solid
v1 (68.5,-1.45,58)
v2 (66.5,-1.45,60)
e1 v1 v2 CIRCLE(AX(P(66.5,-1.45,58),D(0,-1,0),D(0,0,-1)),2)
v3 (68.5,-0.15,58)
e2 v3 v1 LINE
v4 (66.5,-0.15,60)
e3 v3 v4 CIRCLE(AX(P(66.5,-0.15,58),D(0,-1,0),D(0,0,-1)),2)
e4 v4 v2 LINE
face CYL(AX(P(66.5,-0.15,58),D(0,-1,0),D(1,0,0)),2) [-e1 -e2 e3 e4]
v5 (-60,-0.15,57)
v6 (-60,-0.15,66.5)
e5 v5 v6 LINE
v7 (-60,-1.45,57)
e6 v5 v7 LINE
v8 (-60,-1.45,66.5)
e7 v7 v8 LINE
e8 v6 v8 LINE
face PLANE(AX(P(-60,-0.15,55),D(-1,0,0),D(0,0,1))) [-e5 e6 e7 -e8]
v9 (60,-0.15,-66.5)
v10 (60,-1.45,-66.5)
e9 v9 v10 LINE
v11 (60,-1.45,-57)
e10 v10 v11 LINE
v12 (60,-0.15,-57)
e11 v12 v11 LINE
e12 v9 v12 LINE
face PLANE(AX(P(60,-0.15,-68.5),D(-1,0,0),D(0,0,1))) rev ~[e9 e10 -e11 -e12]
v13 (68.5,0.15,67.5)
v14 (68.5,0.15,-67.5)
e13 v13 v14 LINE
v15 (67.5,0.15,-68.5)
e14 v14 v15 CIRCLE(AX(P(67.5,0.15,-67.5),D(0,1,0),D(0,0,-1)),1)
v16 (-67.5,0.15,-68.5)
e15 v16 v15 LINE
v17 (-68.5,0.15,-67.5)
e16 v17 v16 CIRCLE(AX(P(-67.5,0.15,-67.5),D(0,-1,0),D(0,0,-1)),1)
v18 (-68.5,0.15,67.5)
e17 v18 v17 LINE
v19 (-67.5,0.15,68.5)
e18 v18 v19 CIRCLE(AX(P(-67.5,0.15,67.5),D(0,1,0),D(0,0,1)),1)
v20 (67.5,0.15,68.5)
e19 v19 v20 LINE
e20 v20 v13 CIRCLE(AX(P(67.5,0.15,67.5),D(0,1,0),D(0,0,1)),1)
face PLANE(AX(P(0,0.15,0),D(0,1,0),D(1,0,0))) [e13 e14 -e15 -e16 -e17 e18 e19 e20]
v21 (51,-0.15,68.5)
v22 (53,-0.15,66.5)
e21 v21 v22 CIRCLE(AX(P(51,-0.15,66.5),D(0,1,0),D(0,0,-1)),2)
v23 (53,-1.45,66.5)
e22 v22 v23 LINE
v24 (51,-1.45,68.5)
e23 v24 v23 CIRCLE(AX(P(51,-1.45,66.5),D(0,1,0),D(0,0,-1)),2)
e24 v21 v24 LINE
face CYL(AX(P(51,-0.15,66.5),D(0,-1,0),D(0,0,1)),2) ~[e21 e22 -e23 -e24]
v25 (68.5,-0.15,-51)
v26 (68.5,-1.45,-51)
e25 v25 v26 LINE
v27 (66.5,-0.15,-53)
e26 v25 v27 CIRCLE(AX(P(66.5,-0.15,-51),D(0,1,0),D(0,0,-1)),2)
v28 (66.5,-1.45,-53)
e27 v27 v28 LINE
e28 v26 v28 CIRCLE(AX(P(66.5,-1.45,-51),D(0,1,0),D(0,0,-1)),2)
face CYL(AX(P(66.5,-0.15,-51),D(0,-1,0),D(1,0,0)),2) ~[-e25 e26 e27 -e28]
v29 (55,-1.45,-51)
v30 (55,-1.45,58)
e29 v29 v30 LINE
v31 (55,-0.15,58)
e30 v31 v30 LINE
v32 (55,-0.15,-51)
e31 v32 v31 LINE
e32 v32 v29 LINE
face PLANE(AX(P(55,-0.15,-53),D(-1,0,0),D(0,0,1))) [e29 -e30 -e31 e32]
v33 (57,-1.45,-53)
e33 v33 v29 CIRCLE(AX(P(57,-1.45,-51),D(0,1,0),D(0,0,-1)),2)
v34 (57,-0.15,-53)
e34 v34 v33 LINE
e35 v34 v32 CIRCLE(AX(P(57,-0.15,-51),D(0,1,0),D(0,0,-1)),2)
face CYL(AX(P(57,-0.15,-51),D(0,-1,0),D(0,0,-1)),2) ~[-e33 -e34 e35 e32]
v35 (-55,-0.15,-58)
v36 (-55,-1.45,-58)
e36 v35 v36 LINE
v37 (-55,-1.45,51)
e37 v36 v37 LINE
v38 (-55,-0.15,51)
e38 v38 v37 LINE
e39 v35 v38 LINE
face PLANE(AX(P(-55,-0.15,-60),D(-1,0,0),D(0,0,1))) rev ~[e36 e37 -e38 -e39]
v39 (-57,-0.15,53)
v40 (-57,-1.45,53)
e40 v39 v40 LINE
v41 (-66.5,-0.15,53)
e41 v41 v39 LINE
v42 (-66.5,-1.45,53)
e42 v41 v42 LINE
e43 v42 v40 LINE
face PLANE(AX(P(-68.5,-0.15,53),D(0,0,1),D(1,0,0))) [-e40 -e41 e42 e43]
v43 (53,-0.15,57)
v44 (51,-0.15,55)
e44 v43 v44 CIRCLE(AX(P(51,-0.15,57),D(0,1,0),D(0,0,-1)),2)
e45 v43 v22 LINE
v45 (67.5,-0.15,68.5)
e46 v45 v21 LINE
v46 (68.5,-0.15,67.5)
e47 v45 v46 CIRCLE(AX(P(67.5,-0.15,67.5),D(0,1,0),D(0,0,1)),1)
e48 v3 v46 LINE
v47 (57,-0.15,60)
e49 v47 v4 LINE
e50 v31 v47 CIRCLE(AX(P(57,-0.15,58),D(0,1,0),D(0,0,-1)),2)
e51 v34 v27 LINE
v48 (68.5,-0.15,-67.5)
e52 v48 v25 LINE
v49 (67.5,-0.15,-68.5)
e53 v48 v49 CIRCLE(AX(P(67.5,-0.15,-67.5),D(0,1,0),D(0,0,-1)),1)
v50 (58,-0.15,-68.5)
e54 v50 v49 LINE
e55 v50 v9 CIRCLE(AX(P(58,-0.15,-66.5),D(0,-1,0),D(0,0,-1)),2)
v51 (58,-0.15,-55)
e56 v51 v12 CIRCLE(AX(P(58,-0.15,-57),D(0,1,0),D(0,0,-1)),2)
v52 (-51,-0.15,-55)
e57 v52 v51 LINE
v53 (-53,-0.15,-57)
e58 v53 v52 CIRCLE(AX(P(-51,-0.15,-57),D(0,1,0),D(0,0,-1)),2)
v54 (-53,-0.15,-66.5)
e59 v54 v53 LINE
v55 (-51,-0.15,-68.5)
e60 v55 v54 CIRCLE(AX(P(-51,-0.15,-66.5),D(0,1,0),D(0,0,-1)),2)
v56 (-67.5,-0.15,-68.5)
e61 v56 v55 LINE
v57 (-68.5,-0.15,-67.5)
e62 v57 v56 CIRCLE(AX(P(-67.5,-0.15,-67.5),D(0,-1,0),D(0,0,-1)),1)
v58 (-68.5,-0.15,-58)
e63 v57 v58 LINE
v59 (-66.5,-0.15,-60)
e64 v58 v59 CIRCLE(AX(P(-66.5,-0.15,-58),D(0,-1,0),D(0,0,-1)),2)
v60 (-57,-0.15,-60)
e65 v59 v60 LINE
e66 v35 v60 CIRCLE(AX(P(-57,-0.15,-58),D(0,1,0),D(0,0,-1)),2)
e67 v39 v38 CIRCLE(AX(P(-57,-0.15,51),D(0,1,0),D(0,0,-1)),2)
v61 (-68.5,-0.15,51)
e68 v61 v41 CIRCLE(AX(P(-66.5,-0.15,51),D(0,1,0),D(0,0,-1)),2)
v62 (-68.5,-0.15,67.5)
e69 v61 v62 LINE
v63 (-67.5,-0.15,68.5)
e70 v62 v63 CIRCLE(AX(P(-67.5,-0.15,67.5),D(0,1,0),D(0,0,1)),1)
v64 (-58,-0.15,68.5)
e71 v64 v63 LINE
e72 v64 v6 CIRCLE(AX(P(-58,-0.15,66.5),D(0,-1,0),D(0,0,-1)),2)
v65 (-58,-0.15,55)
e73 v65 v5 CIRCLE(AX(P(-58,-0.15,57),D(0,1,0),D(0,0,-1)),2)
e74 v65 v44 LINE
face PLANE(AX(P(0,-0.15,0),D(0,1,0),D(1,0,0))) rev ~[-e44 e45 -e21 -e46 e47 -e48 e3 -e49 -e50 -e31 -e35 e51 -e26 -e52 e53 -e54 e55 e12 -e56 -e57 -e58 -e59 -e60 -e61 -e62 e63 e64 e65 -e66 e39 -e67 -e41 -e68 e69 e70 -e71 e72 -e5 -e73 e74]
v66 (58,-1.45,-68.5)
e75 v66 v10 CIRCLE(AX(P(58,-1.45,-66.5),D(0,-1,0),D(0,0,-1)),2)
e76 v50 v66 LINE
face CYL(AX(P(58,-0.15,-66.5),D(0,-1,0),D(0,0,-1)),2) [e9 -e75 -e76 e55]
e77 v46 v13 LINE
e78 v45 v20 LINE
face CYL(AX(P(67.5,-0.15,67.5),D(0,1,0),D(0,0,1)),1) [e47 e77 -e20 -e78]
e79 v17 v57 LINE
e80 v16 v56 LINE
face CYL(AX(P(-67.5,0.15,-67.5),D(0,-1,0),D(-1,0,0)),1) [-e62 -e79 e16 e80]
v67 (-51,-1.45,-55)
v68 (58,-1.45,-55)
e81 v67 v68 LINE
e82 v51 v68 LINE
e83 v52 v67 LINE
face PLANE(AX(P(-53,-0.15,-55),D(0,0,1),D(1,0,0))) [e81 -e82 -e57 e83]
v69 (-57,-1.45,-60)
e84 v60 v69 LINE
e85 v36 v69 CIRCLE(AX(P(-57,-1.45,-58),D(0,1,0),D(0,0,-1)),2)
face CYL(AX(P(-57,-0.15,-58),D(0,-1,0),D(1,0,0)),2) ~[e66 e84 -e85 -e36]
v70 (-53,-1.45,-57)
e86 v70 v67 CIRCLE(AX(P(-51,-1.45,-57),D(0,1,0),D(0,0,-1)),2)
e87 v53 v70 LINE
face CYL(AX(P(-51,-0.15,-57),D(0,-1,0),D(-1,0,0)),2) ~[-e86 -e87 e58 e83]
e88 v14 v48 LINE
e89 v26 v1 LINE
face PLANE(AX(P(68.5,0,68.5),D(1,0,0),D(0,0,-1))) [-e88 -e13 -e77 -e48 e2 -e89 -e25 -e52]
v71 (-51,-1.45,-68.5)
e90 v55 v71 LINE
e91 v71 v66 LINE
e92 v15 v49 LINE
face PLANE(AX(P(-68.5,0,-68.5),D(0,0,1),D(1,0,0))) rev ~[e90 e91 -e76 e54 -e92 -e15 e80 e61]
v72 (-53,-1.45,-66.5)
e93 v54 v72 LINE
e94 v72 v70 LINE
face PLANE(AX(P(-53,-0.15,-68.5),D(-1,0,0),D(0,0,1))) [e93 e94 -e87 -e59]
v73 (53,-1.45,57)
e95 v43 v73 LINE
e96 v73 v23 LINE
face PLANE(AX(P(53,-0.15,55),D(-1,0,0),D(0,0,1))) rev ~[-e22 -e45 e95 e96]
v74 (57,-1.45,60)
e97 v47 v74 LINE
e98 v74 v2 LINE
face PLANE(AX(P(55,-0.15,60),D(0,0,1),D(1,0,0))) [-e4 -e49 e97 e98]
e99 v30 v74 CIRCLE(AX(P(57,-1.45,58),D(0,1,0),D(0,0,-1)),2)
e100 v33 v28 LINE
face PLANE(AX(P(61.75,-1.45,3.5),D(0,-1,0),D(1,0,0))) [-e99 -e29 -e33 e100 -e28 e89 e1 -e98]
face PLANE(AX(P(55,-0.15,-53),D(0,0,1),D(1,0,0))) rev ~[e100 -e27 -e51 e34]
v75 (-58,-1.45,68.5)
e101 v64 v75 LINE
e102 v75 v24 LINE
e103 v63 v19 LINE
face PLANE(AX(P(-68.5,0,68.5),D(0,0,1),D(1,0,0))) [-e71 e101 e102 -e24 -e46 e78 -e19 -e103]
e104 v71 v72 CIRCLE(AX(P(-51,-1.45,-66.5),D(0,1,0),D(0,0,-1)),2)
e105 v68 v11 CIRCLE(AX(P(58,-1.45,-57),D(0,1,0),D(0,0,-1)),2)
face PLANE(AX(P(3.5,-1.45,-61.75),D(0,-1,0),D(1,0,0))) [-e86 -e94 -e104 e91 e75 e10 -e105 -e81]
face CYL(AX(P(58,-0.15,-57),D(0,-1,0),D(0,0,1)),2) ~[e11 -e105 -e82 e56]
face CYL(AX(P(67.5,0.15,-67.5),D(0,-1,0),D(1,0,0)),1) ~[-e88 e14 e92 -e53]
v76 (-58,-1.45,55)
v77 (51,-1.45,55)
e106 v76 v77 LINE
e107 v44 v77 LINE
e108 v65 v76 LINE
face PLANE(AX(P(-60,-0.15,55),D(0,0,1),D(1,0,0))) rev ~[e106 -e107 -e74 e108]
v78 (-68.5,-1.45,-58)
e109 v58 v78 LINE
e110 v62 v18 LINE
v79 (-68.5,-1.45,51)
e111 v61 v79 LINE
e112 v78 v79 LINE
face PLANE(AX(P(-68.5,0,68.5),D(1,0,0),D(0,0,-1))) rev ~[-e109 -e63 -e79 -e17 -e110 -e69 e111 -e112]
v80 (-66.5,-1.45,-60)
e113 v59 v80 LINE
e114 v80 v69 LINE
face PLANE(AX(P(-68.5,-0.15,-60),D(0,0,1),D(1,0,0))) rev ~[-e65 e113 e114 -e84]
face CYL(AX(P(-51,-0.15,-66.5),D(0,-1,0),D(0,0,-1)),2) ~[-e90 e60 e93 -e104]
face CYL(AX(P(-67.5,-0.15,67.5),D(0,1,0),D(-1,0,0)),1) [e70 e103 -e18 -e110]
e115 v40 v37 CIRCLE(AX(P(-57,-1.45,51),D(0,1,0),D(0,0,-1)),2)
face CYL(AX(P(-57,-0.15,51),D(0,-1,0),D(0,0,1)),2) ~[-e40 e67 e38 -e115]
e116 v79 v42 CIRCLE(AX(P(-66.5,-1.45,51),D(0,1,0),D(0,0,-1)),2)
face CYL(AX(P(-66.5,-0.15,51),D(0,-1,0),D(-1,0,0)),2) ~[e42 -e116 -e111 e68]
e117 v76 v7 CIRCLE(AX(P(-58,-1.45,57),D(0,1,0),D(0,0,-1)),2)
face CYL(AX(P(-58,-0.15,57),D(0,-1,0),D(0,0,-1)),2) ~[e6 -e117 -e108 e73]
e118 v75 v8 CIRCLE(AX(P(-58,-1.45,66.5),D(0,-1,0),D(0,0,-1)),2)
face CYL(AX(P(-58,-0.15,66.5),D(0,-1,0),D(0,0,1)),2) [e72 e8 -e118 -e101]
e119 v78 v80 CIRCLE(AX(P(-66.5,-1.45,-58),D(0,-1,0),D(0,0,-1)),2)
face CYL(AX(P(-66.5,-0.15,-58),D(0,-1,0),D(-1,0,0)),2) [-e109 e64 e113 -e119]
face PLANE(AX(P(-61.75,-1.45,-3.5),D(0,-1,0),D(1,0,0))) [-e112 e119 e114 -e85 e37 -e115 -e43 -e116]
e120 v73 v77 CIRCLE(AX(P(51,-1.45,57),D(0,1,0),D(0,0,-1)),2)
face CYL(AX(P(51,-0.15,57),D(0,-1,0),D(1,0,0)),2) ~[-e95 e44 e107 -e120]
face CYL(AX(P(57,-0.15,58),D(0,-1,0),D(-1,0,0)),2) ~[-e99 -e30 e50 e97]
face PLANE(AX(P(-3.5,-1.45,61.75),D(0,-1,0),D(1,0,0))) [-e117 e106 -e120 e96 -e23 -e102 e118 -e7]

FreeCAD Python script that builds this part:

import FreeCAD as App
import Part
import Sketcher
from FreeCAD import Vector
Q = App.Units.Quantity


def edges_at(feature, points):
    """Names of the edges that pass closest to the given points."""
    edges = feature.Shape.Edges
    near = lambda p: min(range(len(edges)), key=lambda i: edges[i].distToShape(Part.Vertex(*p))[0])
    return sorted({f"Edge{near(p) + 1}" for p in points})


def add_polygon(sketch, points):
    """Adds a closed chain of lines whose ends are joined by coincident constraints."""
    first, n = sketch.GeometryCount, len(points)
    for a, b in zip(points, points[1:] + points[:1]):
        sketch.addGeometry(Part.LineSegment(App.Vector(*a, 0), App.Vector(*b, 0)), False)
    for i in range(n):
        sketch.addConstraint(Sketcher.Constraint("Coincident", first + i, 2, first + (i + 1) % n, 1))

doc = App.newDocument("Part")
params = doc.addObject("Spreadsheet::Sheet", "Params")
for row, (alias, value) in enumerate([
    ("sketch1_width", "137 mm"),
    ("pad1_length", "0.3 mm"),
    ("sketch2_width", "113 mm"),
    ("sketch2_width2", "13.5 mm"),
    ("pad2_length", "1.3 mm"),
    ("fillet_radius", "2 mm"),
    ("fillet2_radius", "1 mm"),
], start=1):
    params.set(f"A{row}", alias)
    params.set(f"B{row}", "=" + value)
    params.setAlias(f"B{row}", alias)

body = doc.addObject("PartDesign::Body", "Body")

# Sketch on XZ plane
sketch1 = body.newObject("Sketcher::SketchObject", "Sketch")
sketch1.AttachmentSupport = (doc.getObject("XZ_Plane"), [""])
sketch1.MapMode = "FlatFace"
add_polygon(sketch1, [(-68, -68), (-68, 68), (68, 68), (68, -68)])  # lines 0-3
sketch1.addConstraint(Sketcher.Constraint("Vertical", 0))
sketch1.addConstraint(Sketcher.Constraint("Horizontal", 1))
sketch1.addConstraint(Sketcher.Constraint("Vertical", 2))
sketch1.addConstraint(Sketcher.Constraint("Horizontal", 3))
sketch1.addConstraint(Sketcher.Constraint("Symmetric", 0, 2, 2, 2, -1, 1))
sketch1.addConstraint(Sketcher.Constraint("Equal", 3, 0))
sketch1.addConstraint(Sketcher.Constraint("DistanceX", 1, 1, 1, 2, Q("137 mm")))
sketch1.setExpression("Constraints[10]", "Params.sketch1_width")
pad1 = body.newObject("PartDesign::Pad", "Pad")
pad1.Profile = sketch1
pad1.setExpression("Length", "Params.pad1_length")
pad1.Midplane = True

# Sketch on XZ plane
sketch2 = body.newObject("Sketcher::SketchObject", "Sketch001")
sketch2.AttachmentSupport = (doc.getObject("XZ_Plane"), [""])
sketch2.MapMode = "FlatFace"
sketch2.AttachmentOffset = App.Placement(Vector(0, 0, 0.15), App.Rotation())
add_polygon(sketch2, [(-68, 53), (-68, -60), (-55, -60), (-55, 53)])  # lines 0-3
add_polygon(sketch2, [(-53, -55), (-53, -68), (60, -68), (60, -55)])  # lines 4-7
add_polygon(sketch2, [(-60, 68), (-60, 55), (53, 55), (53, 68)])  # lines 8-11
add_polygon(sketch2, [(55, 60), (55, -53), (68, -53), (68, 60)])  # lines 12-15
sketch2.addConstraint(Sketcher.Constraint("Vertical", 0))
sketch2.addConstraint(Sketcher.Constraint("Horizontal", 1))
sketch2.addConstraint(Sketcher.Constraint("Vertical", 2))
sketch2.addConstraint(Sketcher.Constraint("Horizontal", 3))
sketch2.addConstraint(Sketcher.Constraint("Vertical", 4))
sketch2.addConstraint(Sketcher.Constraint("Horizontal", 5))
sketch2.addConstraint(Sketcher.Constraint("Vertical", 6))
sketch2.addConstraint(Sketcher.Constraint("Horizontal", 7))
sketch2.addConstraint(Sketcher.Constraint("Vertical", 8))
sketch2.addConstraint(Sketcher.Constraint("Horizontal", 9))
sketch2.addConstraint(Sketcher.Constraint("Vertical", 10))
sketch2.addConstraint(Sketcher.Constraint("Horizontal", 11))
sketch2.addConstraint(Sketcher.Constraint("Vertical", 12))
sketch2.addConstraint(Sketcher.Constraint("Horizontal", 13))
sketch2.addConstraint(Sketcher.Constraint("Vertical", 14))
sketch2.addConstraint(Sketcher.Constraint("Horizontal", 15))
sketch2.addConstraint(Sketcher.Constraint("Symmetric", 6, 2, 8, 2, -1, 1))
sketch2.addConstraint(Sketcher.Constraint("Symmetric", 4, 2, 10, 2, -1, 1))
sketch2.addConstraint(Sketcher.Constraint("Symmetric", 2, 2, 12, 2, -1, 1))
sketch2.addConstraint(Sketcher.Constraint("Symmetric", 0, 2, 14, 2, -1, 1))
sketch2.addConstraint(Sketcher.Constraint("Equal", 11, 0))
sketch2.addConstraint(Sketcher.Constraint("Equal", 15, 4))
sketch2.addConstraint(Sketcher.Constraint("DistanceX", 5, 1, 5, 2, Q("113 mm")))
sketch2.addConstraint(Sketcher.Constraint("DistanceX", 1, 1, 1, 2, Q("13.5 mm")))
sketch2.addConstraint(Sketcher.Constraint("DistanceY", 0, 2, -1, 1, Q("60 mm")))
sketch2.addConstraint(Sketcher.Constraint("DistanceX", 1, 2, -1, 1, Q("55 mm")))
sketch2.addConstraint(Sketcher.Constraint("DistanceX", 4, 2, -1, 1, Q("53 mm")))
sketch2.addConstraint(Sketcher.Constraint("DistanceY", 6, 2, -1, 1, Q("55 mm")))
sketch2.setExpression("Constraints[38]", "Params.sketch2_width")
sketch2.setExpression("Constraints[39]", "Params.sketch2_width2")
pad2 = body.newObject("PartDesign::Pad", "Pad001")
pad2.Profile = sketch2
pad2.setExpression("Length", "Params.pad2_length")
doc.recompute()

fillet = body.newObject("PartDesign::Fillet", "Fillet")
fillet.Base = (pad2, edges_at(pad2, [
    (60, -0.8, -68.5),
    (60, -0.8, -55),
    (-53, -0.8, -55),
    (-53, -0.8, -68.5),
    (-55, -0.8, -60),
    (-55, -0.8, 53),
    (-68.5, -0.8, 53),
    (-68.5, -0.8, -60),
    (-60, -0.8, 55),
    (53, -0.8, 55),
    (53, -0.8, 68.5),
    (-60, -0.8, 68.5),
    (55, -0.8, 60),
    (55, -0.8, -53),
    (68.5, -0.8, -53),
    (68.5, -0.8, 60),
]))
fillet.setExpression("Radius", "Params.fillet_radius")
doc.recompute()

fillet2 = body.newObject("PartDesign::Fillet", "Fillet001")
fillet2.Base = (fillet, edges_at(fillet, [
    (68.5, 0, 68.5),
    (-68.5, 0, 68.5),
    (-68.5, 0, -68.5),
    (68.5, 0, -68.5),
]))
fillet2.setExpression("Radius", "Params.fillet2_radius")

doc.recompute()
